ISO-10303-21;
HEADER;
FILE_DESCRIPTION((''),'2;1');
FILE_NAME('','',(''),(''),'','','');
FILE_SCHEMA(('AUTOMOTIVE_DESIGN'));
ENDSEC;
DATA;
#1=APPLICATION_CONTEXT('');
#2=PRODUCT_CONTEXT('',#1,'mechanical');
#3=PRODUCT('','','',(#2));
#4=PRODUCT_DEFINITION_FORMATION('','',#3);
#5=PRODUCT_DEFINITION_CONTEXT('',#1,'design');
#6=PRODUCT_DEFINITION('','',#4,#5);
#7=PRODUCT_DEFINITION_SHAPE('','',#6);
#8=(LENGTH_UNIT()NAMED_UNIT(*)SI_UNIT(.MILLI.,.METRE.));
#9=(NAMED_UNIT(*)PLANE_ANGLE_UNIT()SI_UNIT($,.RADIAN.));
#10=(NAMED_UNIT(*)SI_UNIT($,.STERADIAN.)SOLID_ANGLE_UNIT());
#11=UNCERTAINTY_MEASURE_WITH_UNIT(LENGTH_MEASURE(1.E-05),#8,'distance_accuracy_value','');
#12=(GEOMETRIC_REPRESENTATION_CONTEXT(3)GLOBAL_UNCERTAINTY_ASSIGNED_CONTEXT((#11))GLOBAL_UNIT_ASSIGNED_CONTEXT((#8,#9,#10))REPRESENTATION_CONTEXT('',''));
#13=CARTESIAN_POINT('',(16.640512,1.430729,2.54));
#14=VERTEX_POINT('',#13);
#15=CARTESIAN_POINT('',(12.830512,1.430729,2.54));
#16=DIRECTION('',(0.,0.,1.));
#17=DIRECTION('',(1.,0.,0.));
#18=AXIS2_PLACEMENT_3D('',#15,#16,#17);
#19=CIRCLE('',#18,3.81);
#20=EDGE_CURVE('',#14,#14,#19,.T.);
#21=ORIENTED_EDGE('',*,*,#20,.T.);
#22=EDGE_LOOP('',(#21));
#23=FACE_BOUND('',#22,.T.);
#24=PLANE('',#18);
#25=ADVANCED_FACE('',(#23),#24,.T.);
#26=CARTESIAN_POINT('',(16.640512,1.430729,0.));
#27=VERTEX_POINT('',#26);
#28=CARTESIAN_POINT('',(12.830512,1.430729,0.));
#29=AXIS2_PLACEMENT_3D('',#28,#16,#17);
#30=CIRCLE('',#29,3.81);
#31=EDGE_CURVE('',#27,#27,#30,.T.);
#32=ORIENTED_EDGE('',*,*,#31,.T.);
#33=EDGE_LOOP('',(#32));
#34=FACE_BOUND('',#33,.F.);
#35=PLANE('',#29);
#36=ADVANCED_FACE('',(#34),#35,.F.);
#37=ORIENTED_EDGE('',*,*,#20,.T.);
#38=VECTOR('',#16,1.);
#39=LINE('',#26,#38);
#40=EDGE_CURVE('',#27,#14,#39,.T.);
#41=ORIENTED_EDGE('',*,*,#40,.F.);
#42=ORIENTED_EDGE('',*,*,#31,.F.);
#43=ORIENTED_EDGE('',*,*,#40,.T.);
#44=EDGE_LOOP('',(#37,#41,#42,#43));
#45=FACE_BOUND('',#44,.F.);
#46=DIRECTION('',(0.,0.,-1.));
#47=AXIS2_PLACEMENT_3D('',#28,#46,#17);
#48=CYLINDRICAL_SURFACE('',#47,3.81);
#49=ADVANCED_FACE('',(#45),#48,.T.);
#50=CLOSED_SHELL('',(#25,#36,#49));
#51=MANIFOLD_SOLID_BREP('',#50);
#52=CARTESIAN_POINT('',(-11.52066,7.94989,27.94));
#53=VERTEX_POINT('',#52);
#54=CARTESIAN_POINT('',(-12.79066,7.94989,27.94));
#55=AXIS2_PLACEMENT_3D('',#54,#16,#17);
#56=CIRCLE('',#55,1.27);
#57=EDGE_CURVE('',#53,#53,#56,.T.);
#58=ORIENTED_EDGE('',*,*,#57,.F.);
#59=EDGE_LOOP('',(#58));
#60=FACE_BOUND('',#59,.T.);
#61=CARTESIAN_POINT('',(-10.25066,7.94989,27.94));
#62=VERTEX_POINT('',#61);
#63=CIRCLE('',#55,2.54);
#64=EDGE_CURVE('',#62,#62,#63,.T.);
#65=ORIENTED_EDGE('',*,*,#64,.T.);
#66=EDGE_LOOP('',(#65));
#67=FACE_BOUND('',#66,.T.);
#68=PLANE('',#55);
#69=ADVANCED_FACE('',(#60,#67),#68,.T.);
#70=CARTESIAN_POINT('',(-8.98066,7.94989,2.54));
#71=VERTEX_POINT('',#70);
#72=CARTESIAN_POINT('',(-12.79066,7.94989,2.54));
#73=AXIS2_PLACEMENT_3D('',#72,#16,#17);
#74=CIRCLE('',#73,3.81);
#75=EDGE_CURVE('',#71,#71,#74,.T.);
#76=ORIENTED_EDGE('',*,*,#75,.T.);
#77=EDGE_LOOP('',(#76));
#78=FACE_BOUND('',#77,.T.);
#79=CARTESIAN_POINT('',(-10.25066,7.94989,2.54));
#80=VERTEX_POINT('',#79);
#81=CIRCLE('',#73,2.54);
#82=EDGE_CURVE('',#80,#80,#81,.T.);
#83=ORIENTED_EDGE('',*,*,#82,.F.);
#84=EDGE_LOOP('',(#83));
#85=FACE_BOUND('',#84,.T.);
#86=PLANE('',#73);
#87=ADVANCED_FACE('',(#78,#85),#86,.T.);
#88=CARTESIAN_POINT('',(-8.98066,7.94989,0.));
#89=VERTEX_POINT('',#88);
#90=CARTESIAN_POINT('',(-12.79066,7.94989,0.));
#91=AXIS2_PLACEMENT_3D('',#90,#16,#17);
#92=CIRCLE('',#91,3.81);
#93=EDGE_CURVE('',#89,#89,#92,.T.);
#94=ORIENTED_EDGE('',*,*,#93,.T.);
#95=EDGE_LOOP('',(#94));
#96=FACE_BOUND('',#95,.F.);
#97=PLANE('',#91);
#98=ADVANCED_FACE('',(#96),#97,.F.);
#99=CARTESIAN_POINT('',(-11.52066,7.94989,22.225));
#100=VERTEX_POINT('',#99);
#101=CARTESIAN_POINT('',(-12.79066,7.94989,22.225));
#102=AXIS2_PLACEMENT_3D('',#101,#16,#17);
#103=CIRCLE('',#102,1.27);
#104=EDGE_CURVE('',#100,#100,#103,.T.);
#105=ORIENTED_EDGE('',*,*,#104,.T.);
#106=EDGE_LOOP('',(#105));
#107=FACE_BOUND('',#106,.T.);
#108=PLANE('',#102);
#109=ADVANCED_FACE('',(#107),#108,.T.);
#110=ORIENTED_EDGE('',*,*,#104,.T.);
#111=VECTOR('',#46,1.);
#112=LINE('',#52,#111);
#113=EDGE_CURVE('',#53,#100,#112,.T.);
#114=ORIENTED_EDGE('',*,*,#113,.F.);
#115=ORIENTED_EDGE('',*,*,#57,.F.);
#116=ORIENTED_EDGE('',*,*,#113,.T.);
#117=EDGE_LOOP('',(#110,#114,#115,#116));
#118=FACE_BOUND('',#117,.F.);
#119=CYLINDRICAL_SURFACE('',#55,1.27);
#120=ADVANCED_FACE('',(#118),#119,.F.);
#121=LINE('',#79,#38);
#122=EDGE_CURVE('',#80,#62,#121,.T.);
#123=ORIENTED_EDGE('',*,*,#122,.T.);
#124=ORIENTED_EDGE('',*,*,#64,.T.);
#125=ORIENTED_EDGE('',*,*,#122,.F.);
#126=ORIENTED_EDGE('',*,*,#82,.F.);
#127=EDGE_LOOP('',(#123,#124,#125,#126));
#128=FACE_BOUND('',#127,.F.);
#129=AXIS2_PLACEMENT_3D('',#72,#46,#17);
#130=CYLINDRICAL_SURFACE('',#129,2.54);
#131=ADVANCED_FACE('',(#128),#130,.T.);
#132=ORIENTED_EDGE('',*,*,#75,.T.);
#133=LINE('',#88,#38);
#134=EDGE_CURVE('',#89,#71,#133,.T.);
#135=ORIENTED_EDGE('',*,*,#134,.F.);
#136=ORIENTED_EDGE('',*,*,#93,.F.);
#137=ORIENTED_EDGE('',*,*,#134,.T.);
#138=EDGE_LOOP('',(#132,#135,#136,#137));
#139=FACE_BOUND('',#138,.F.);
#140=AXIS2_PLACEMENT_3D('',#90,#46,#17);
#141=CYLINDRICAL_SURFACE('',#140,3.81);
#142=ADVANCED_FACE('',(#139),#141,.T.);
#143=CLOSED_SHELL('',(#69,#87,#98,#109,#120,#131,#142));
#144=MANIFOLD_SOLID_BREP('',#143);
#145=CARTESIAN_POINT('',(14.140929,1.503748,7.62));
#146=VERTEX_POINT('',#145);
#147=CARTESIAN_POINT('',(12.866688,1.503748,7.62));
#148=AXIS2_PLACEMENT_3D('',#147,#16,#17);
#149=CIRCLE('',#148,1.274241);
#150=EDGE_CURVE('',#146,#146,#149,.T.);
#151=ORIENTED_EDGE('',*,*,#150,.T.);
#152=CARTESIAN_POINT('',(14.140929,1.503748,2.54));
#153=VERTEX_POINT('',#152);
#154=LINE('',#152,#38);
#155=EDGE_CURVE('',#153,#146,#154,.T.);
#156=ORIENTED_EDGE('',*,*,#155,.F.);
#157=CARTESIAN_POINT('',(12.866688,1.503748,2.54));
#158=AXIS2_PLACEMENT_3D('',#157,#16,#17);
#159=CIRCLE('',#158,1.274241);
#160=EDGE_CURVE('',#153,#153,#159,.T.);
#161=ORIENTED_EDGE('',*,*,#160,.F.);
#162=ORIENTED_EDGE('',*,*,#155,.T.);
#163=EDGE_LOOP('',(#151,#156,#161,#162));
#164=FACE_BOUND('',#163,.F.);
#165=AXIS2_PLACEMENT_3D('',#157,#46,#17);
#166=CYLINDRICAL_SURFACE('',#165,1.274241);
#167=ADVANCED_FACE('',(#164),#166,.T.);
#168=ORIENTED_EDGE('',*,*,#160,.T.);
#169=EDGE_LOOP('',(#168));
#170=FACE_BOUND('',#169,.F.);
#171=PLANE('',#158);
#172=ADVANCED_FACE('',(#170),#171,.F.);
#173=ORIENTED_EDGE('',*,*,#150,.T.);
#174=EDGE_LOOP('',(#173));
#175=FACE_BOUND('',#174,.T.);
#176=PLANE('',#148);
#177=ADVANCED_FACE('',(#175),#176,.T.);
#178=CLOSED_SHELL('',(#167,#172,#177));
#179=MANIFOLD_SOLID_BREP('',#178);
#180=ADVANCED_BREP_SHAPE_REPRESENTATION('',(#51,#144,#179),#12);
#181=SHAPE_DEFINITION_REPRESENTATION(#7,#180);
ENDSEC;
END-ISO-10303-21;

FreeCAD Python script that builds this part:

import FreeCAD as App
import Part
import Sketcher
from FreeCAD import Vector
Q = App.Units.Quantity

doc = App.newDocument("Part")
body = doc.addObject("PartDesign::Body", "Body")
body.AllowCompound = True

sketch1 = body.newObject("Sketcher::SketchObject", "Sketch")
sketch1.AttachmentSupport = (doc.getObject("XY_Plane"), [""])
sketch1.MapMode = "FlatFace"
sketch1.addGeometry([
    Part.Circle(Vector(12.830512, 1.430729, 0), Vector(0, 0, 1), 3.81),
    Part.Circle(Vector(-12.79066, 7.94989, 0), Vector(0, 0, 1), 3.81),
], False)
sketch1.addConstraint([
    Sketcher.Constraint("Equal", 0, 1),
    Sketcher.Constraint("Diameter", 0, Q("0.3 in")),
    Sketcher.Constraint("DistanceY", -1, 1, 0, 3, Q("1.430729 mm")),
    Sketcher.Constraint("DistanceX", 1, 3, -1, 1, Q("12.79066 mm")),
    Sketcher.Constraint("DistanceY", -1, 1, 1, 3, Q("7.94989 mm")),
    Sketcher.Constraint("DistanceX", -1, 1, 0, 3, Q("12.830512 mm")),
])
pad1 = body.newObject("PartDesign::Pad", "Pad")
pad1.Profile = sketch1
pad1.Length = Q("0.1 in")

sketch2 = body.newObject("Sketcher::SketchObject", "Sketch001")
sketch2.AttachmentSupport = (doc.getObject("XY_Plane"), [""])
sketch2.MapMode = "FlatFace"
sketch2.AttachmentOffset = App.Placement(Vector(0, 0, 0.1 * 25.4), App.Rotation())
sketch2.addGeometry(Part.Circle(Vector(-12.79066, 7.94989, 0), Vector(0, 0, 1), 2.54), False)
sketch2.addConstraint([
    Sketcher.Constraint("Diameter", 0, Q("0.2 in")),
    Sketcher.Constraint("DistanceX", 0, 3, -1, 1, Q("12.79066 mm")),
    Sketcher.Constraint("DistanceY", -1, 1, 0, 3, Q("7.94989 mm")),
])
pad2 = body.newObject("PartDesign::Pad", "Pad001")
pad2.Profile = sketch2
pad2.Length = Q("1 in")

sketch3 = body.newObject("Sketcher::SketchObject", "Sketch002")
sketch3.AttachmentSupport = (doc.getObject("XY_Plane"), [""])
sketch3.MapMode = "FlatFace"
sketch3.AttachmentOffset = App.Placement(Vector(0, 0, 1.1 * 25.4), App.Rotation())
sketch3.addGeometry(Part.Circle(Vector(-12.79066, 7.94989, 0), Vector(0, 0, 1), 1.27), False)
sketch3.addConstraint([
    Sketcher.Constraint("Diameter", 0, Q("0.1 in")),
    Sketcher.Constraint("DistanceX", 0, 3, -1, 1, Q("12.79066 mm")),
    Sketcher.Constraint("DistanceY", -1, 1, 0, 3, Q("7.94989 mm")),
])
pocket1 = body.newObject("PartDesign::Pocket", "Pocket")
pocket1.Profile = sketch3
pocket1.Length = Q("0.225 in")
body2 = doc.addObject("PartDesign::Body", "Body001")

sketch4 = body2.newObject("Sketcher::SketchObject", "Sketch003")
sketch4.AttachmentSupport = (doc.getObject("XY_Plane001"), [""])
sketch4.MapMode = "FlatFace"
sketch4.AttachmentOffset = App.Placement(Vector(0, 0, 0.1 * 25.4), App.Rotation())
sketch4.addGeometry(Part.Circle(Vector(12.866688, 1.503748, 0), Vector(0, 0, 1), 1.274241), False)
sketch4.addConstraint([
    Sketcher.Constraint("Diameter", 0, Q("2.548482 mm")),
    Sketcher.Constraint("DistanceY", -1, 1, 0, 3, Q("1.503748 mm")),
    Sketcher.Constraint("DistanceX", -1, 1, 0, 3, Q("12.866688 mm")),
])
pad3 = body2.newObject("PartDesign::Pad", "Pad002")
pad3.Profile = sketch4
pad3.Length = Q("0.2 in")

doc.recompute()
